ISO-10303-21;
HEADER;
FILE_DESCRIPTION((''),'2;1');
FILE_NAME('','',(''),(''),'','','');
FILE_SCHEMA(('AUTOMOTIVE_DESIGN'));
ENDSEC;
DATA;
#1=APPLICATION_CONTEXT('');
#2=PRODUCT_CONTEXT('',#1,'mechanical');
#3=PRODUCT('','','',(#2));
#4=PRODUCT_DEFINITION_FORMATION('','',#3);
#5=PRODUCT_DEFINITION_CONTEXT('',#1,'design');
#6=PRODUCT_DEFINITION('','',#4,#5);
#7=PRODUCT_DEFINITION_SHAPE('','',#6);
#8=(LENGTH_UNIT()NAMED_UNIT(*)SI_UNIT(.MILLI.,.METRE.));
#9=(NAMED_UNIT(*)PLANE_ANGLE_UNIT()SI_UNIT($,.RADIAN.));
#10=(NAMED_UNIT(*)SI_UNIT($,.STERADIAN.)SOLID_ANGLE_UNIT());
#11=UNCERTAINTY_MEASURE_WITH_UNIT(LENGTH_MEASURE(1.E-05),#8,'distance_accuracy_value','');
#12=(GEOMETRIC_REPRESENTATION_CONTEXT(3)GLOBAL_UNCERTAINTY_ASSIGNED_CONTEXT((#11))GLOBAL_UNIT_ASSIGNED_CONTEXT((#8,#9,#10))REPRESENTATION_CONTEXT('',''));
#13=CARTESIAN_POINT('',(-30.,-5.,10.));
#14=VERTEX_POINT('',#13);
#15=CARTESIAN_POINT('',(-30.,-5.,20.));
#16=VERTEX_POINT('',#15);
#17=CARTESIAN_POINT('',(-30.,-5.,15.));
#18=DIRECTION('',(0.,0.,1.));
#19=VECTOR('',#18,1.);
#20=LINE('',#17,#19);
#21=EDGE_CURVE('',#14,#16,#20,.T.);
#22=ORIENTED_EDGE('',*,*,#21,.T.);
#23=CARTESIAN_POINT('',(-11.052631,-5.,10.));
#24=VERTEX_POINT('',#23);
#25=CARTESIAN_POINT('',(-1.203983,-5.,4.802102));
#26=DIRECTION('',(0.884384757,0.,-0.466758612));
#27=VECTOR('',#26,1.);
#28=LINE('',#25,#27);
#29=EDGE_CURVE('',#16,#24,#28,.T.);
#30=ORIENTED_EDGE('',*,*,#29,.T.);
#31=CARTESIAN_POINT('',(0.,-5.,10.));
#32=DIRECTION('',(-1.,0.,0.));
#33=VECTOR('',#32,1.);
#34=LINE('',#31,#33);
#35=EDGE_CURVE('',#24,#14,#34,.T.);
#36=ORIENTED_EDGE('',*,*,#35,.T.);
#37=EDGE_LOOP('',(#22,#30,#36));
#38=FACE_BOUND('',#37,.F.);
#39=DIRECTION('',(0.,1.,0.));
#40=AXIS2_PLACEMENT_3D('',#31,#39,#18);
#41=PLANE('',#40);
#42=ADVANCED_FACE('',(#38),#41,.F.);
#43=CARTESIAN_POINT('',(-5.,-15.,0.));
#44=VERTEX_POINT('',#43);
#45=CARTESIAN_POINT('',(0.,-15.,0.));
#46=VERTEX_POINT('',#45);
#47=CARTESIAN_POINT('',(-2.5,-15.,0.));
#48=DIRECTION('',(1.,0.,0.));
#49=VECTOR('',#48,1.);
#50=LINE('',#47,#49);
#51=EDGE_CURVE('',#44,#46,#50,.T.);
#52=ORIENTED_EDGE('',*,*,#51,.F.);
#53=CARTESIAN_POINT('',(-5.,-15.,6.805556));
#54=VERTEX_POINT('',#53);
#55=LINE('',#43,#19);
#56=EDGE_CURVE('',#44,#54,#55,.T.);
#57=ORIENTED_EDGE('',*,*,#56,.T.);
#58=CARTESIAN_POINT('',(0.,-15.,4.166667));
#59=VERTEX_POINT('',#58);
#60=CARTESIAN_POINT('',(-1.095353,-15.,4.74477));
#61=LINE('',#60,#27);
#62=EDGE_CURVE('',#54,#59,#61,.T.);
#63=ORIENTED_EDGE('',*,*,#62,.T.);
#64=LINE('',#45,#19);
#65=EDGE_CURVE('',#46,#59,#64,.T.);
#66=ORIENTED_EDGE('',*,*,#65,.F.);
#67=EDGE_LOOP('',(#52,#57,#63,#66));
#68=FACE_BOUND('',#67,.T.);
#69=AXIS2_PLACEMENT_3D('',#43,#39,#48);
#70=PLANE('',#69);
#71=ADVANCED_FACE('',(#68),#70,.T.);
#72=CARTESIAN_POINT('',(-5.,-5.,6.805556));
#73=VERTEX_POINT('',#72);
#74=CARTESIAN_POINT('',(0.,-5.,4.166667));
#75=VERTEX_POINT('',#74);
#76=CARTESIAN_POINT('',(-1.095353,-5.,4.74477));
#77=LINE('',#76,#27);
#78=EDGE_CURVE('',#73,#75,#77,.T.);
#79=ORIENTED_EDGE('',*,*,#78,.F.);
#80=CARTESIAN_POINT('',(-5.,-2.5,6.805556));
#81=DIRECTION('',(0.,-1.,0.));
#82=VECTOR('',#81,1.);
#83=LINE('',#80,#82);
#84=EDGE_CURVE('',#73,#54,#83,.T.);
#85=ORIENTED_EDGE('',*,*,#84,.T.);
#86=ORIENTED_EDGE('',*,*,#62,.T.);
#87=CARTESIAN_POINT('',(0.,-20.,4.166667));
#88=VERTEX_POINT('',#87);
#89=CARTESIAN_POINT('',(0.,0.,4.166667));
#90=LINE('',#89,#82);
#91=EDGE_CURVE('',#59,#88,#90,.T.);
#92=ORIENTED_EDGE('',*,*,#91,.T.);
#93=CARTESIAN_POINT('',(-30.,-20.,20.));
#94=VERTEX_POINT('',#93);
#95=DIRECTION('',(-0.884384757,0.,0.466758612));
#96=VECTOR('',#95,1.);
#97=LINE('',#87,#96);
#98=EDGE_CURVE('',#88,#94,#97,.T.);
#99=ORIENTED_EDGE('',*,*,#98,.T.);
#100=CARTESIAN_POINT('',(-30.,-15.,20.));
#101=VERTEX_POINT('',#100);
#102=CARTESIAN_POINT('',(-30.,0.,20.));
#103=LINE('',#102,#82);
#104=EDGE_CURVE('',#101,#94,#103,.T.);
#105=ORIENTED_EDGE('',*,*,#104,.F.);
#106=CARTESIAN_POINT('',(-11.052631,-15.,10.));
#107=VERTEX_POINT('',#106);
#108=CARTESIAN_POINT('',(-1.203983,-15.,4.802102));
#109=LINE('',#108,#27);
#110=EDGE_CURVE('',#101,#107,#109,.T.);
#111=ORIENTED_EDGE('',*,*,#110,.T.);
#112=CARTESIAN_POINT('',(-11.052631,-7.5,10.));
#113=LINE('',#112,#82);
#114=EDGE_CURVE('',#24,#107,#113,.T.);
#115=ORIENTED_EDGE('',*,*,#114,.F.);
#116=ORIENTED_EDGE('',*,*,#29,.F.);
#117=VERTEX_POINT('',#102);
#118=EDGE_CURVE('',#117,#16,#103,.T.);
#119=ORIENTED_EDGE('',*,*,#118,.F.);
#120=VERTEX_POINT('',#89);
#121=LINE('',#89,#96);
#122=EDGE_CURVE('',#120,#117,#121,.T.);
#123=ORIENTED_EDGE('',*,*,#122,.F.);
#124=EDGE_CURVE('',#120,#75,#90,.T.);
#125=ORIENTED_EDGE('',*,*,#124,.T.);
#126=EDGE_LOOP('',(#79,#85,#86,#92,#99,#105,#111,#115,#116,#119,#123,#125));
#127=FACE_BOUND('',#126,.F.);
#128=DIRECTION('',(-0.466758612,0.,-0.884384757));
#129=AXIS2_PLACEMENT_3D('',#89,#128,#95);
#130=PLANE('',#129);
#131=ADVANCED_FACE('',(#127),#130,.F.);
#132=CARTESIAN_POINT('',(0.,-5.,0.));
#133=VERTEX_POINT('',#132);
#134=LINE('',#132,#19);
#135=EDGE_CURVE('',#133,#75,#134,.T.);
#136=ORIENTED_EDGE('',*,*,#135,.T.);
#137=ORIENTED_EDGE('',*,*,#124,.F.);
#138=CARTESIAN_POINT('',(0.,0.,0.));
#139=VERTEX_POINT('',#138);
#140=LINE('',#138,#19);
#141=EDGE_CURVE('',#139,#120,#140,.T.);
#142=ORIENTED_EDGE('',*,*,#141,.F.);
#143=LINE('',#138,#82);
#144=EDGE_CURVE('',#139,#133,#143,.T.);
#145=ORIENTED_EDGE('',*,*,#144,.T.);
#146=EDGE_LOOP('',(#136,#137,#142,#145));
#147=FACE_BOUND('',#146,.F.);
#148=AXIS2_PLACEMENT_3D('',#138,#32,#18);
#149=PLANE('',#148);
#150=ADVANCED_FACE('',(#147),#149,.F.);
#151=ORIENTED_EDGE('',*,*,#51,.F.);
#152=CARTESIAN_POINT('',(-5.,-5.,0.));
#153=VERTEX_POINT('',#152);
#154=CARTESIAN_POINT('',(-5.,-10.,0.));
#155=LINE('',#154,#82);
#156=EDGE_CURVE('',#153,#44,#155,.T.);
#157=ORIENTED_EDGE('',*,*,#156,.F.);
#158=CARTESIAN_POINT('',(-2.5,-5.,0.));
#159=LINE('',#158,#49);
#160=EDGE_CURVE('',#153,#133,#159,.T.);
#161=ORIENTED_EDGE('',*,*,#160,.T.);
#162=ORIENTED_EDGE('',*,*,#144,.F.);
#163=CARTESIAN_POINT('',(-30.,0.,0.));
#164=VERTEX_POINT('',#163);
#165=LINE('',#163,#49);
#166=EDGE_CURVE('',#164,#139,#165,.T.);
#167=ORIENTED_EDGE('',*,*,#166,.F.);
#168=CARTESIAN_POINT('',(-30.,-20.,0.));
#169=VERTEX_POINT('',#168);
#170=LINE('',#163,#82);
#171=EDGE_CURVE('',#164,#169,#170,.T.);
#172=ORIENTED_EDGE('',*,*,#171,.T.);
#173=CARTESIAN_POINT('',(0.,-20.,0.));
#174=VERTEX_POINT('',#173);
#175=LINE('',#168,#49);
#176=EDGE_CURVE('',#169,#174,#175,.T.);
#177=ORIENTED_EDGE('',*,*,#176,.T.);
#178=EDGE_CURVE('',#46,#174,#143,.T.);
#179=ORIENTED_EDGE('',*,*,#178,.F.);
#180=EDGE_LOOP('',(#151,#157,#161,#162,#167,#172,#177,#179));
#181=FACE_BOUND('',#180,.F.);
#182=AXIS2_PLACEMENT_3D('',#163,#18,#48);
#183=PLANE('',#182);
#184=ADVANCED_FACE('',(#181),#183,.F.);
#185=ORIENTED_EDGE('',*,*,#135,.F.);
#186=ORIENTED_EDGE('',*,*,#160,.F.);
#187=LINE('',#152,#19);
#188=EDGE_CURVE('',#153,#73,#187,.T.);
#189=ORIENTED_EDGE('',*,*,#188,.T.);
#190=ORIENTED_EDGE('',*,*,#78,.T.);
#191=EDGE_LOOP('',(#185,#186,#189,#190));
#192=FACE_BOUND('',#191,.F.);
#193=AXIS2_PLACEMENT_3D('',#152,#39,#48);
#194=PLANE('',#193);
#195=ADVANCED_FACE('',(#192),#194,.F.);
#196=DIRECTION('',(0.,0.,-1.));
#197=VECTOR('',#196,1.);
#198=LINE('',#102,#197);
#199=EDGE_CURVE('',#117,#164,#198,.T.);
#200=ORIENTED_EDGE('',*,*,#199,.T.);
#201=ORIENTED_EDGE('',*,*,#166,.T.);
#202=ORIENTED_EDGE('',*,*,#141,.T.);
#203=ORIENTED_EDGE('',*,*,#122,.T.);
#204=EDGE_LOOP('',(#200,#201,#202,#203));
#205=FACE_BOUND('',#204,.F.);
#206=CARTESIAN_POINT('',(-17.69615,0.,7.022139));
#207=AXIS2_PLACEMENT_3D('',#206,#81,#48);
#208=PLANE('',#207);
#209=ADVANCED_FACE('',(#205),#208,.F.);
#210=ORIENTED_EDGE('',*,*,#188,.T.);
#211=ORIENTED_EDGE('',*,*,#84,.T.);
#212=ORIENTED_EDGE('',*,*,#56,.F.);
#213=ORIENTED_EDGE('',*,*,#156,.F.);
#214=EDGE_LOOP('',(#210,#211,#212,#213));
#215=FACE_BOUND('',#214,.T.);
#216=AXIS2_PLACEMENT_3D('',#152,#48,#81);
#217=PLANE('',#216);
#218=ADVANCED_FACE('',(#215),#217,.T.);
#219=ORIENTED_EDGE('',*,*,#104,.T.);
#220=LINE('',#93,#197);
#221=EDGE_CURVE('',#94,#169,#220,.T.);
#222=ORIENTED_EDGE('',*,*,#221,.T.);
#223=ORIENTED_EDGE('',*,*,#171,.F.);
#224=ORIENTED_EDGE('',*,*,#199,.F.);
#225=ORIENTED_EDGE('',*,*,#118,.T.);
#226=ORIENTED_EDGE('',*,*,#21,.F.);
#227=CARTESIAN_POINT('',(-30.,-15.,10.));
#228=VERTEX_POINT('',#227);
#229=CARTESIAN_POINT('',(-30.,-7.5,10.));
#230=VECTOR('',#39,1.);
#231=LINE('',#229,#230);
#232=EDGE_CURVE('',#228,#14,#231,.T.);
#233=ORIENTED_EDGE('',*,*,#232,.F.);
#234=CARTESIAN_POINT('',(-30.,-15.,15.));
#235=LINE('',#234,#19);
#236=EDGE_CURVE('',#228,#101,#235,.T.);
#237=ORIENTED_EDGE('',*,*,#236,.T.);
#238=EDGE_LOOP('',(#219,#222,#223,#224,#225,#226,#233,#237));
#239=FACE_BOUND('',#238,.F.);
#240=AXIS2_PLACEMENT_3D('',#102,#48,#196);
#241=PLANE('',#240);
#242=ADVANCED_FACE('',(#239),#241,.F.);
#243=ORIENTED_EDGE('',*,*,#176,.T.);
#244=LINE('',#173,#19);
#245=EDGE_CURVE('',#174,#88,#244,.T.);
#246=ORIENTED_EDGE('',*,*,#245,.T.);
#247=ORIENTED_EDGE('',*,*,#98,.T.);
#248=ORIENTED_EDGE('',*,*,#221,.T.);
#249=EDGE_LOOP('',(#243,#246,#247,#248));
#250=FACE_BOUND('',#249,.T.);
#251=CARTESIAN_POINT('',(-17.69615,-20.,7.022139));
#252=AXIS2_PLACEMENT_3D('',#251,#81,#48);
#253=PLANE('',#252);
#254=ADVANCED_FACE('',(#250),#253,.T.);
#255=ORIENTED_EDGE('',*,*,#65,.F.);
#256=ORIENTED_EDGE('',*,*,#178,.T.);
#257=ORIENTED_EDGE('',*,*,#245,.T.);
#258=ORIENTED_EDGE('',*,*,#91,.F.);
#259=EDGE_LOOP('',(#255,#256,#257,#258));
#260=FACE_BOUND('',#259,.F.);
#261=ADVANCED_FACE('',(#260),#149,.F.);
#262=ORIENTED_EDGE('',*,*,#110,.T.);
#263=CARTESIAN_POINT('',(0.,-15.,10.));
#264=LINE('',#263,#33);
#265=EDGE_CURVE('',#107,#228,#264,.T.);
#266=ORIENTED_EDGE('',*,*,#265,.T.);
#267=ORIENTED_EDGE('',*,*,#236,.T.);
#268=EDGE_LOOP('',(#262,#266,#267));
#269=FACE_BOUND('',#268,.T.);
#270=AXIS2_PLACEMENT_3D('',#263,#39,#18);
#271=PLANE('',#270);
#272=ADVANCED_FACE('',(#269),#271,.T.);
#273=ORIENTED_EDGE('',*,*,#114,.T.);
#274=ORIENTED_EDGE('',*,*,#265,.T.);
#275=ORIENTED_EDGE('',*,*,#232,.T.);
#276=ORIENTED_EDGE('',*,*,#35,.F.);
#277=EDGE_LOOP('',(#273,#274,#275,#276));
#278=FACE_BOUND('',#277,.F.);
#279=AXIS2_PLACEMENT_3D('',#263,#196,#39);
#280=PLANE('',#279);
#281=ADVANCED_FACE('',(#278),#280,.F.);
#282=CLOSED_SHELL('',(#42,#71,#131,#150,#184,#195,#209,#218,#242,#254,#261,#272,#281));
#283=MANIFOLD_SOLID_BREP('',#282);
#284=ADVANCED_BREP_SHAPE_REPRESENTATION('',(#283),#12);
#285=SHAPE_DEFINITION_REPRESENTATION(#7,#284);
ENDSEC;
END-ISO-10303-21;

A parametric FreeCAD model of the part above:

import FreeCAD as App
import Part
import Sketcher
from FreeCAD import Vector


def add_polygon(sketch, points):
    """Adds a closed chain of lines whose ends are joined by coincident constraints."""
    first, n = sketch.GeometryCount, len(points)
    for a, b in zip(points, points[1:] + points[:1]):
        sketch.addGeometry(Part.LineSegment(App.Vector(*a, 0), App.Vector(*b, 0)), False)
    for i in range(n):
        sketch.addConstraint(Sketcher.Constraint("Coincident", first + i, 2, first + (i + 1) % n, 1))

doc = App.newDocument("Part")
body = doc.addObject("PartDesign::Body", "Body")

# Sketch on XZ plane
sketch1 = body.newObject("Sketcher::SketchObject", "Sketch")
sketch1.AttachmentSupport = (doc.getObject("XZ_Plane"), [""])
sketch1.MapMode = "FlatFace"
add_polygon(sketch1, [(0, 4.166667), (-30, 20), (-30, 0), (0, 0)])  # lines 0-3
sketch1.addConstraint([
    Sketcher.Constraint("Vertical", 1),
    Sketcher.Constraint("Horizontal", 2),
    Sketcher.Constraint("Vertical", 3),
    Sketcher.Constraint("Coincident", 2, 2, -1, 1),
    Sketcher.Constraint("DistanceX", 2, 1, 2, 2, 30.0),
    Sketcher.Constraint("DistanceY", 1, 2, 1, 1, 20.0),
    Sketcher.Constraint("DistanceY", 3, 1, 3, 2, 4.166667),
])
pad1 = body.newObject("PartDesign::Pad", "Pad")
pad1.Profile = sketch1
pad1.Length = 20

# Sketch on YZ plane
sketch2 = body.newObject("Sketcher::SketchObject", "Sketch001")
sketch2.AttachmentSupport = (doc.getObject("YZ_Plane"), [""])
sketch2.MapMode = "FlatFace"
add_polygon(sketch2, [(-15, 20), (-15, 10), (-5, 10), (-5, 20)])  # lines 0-3
sketch2.addConstraint([
    Sketcher.Constraint("Vertical", 0),
    Sketcher.Constraint("Horizontal", 1),
    Sketcher.Constraint("Vertical", 2),
    Sketcher.Constraint("Horizontal", 3),
    Sketcher.Constraint("Equal", 3, 0),
    Sketcher.Constraint("DistanceX", 1, 1, 1, 2, 10.0),
    Sketcher.Constraint("DistanceX", 0, 2, -1, 1, 15.0),
    Sketcher.Constraint("DistanceY", -1, 1, 0, 2, 10.0),
])
pocket1 = body.newObject("PartDesign::Pocket", "Pocket")
pocket1.Profile = sketch2
pocket1.Type = "ThroughAll"

# Sketch on XY plane
sketch3 = body.newObject("Sketcher::SketchObject", "Sketch002")
sketch3.AttachmentSupport = (doc.getObject("XY_Plane"), [""])
sketch3.MapMode = "FlatFace"
add_polygon(sketch3, [(-5, -15), (-5, -5), (0, -5), (0, -15)])  # lines 0-3
sketch3.addConstraint([
    Sketcher.Constraint("Vertical", 0),
    Sketcher.Constraint("Horizontal", 1),
    Sketcher.Constraint("Vertical", 2),
    Sketcher.Constraint("Horizontal", 3),
    Sketcher.Constraint("PointOnObject", 1, 2, -2),
    Sketcher.Constraint("DistanceX", 1, 1, 1, 2, 5.0),
    Sketcher.Constraint("DistanceY", 0, 1, 0, 2, 10.0),
    Sketcher.Constraint("DistanceY", 0, 2, -1, 1, 5.0),
])
pocket2 = body.newObject("PartDesign::Pocket", "Pocket001")
pocket2.Profile = sketch3
pocket2.Length = 25
pocket2.Reversed = True

doc.recompute()
